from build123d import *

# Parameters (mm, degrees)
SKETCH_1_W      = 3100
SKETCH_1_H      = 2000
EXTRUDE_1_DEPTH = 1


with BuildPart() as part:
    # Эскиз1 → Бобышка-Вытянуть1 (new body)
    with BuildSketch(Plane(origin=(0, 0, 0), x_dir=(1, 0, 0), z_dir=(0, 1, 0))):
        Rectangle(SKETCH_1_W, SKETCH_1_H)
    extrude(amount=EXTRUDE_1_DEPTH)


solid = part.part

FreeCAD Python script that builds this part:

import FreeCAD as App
import Part
import Sketcher

V = App.Vector


def add_polygon(sketch, points):
    """Adds a closed chain of lines whose ends are joined by coincident constraints."""
    first, n = sketch.GeometryCount, len(points)
    for a, b in zip(points, points[1:] + points[:1]):
        sketch.addGeometry(Part.LineSegment(App.Vector(*a, 0), App.Vector(*b, 0)), False)
    for i in range(n):
        sketch.addConstraint(Sketcher.Constraint("Coincident", first + i, 2, first + (i + 1) % n, 1))

doc = App.newDocument("Part")
body = doc.addObject("PartDesign::Body", "Body")

sketch1 = body.newObject("Sketcher::SketchObject", "Sketch")
sketch1.AttachmentSupport = (doc.getObject("XZ_Plane"), [""])
sketch1.MapMode = "FlatFace"
add_polygon(sketch1, [(-1550, -1000), (-1550, 1000), (1550, 1000), (1550, -1000)])
sketch1.addConstraint(Sketcher.Constraint("Vertical", 0))
sketch1.addConstraint(Sketcher.Constraint("Horizontal", 1))
sketch1.addConstraint(Sketcher.Constraint("Vertical", 2))
sketch1.addConstraint(Sketcher.Constraint("Horizontal", 3))
sketch1.addConstraint(Sketcher.Constraint("Symmetric", 0, 2, 2, 2, -1, 1))
sketch1.addConstraint(Sketcher.Constraint("DistanceX", 1, 1, 1, 2, 3100.0))
sketch1.addConstraint(Sketcher.Constraint("DistanceY", 0, 1, 0, 2, 2000.0))
pad1 = body.newObject("PartDesign::Pad", "Pad")
pad1.Profile = sketch1
pad1.Length = 1
pad1.Reversed = True

doc.recompute()
